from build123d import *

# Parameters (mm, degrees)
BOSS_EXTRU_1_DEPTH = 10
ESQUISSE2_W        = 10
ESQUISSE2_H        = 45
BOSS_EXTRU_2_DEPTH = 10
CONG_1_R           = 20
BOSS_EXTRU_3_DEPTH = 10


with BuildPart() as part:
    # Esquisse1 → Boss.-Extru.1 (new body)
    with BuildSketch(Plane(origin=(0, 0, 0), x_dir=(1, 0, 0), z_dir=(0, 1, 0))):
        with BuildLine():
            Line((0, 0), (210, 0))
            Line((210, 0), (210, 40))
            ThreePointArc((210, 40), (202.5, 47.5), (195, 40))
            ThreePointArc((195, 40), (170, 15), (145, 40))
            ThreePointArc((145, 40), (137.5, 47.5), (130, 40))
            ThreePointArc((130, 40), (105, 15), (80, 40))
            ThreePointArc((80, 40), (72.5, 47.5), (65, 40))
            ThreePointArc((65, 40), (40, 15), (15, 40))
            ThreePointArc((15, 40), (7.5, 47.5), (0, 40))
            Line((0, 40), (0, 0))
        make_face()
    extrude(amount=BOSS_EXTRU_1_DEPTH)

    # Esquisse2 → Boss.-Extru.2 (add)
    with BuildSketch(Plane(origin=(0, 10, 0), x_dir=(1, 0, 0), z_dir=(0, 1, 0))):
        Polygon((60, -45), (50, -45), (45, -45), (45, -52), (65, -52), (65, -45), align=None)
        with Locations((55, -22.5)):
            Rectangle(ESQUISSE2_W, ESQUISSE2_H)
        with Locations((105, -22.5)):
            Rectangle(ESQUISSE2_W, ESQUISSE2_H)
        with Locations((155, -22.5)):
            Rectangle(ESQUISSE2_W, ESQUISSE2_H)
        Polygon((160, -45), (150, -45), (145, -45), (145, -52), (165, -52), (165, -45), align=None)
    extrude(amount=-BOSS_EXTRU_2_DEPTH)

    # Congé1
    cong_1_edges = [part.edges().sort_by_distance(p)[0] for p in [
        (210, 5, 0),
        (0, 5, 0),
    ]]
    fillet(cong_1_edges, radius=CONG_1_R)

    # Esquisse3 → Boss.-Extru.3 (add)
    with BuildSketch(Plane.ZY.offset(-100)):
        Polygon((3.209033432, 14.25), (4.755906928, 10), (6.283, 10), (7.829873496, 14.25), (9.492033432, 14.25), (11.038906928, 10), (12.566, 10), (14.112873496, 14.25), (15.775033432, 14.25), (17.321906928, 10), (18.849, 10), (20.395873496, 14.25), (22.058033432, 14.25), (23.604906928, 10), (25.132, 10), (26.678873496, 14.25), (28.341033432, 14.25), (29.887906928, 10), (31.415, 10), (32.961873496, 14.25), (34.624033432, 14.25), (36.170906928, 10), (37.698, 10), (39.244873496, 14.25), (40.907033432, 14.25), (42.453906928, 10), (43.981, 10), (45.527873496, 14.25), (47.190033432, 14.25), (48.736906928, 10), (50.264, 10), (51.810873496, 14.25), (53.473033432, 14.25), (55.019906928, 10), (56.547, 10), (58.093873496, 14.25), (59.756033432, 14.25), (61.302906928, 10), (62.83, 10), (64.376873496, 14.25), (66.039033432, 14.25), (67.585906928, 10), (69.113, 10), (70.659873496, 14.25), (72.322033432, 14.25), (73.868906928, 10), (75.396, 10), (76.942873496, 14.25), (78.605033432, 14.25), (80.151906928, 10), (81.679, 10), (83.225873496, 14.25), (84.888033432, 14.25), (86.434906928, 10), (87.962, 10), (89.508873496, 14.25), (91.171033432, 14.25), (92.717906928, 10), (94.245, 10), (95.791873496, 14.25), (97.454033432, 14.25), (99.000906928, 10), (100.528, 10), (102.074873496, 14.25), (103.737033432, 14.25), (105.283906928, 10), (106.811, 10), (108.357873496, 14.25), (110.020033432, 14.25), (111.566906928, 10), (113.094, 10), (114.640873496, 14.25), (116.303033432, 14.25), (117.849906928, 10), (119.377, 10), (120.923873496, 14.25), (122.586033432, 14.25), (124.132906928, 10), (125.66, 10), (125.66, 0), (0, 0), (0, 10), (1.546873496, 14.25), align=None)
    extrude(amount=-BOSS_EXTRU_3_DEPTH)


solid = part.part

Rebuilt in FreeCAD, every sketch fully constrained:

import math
import FreeCAD as App
import Part
import Sketcher
Q = App.Units.Quantity


def edges_at(feature, points):
    """Names of the edges that pass closest to the given points."""
    edges = feature.Shape.Edges
    near = lambda p: min(range(len(edges)), key=lambda i: edges[i].distToShape(Part.Vertex(*p))[0])
    return sorted({f"Edge{near(p) + 1}" for p in points})

doc = App.newDocument("Part")
body = doc.addObject("PartDesign::Body", "Body")

sketch1 = body.newObject("Sketcher::SketchObject", "Sketch")
sketch1.AttachmentSupport = (doc.getObject("XZ_Plane"), [""])
sketch1.MapMode = "FlatFace"
sketch1.addGeometry(Part.LineSegment(App.Vector(0, 0, 0), App.Vector(210, 0, 0)), False)
sketch1.addGeometry(Part.LineSegment(App.Vector(210, 0, 0), App.Vector(210, -40, 0)), False)
sketch1.addGeometry(Part.ArcOfCircle(Part.Circle(App.Vector(202, -40, 0), App.Vector(0, 0, 1), 8), math.radians(180), math.radians(360)), False)
sketch1.addGeometry(Part.ArcOfCircle(Part.Circle(App.Vector(170, -40, 0), App.Vector(0, 0, 1), 25), math.radians(0), math.radians(180)), False)
sketch1.addGeometry(Part.ArcOfCircle(Part.Circle(App.Vector(138, -40, 0), App.Vector(0, 0, 1), 8), math.radians(180), math.radians(360)), False)
sketch1.addGeometry(Part.ArcOfCircle(Part.Circle(App.Vector(105, -40, 0), App.Vector(0, 0, 1), 25), math.radians(0), math.radians(180)), False)
sketch1.addGeometry(Part.ArcOfCircle(Part.Circle(App.Vector(72, -40, 0), App.Vector(0, 0, 1), 8), math.radians(180), math.radians(360)), False)
sketch1.addGeometry(Part.ArcOfCircle(Part.Circle(App.Vector(40, -40, 0), App.Vector(0, 0, 1), 25), math.radians(0), math.radians(180)), False)
sketch1.addGeometry(Part.ArcOfCircle(Part.Circle(App.Vector(8, -40, 0), App.Vector(0, 0, 1), 8), math.radians(180), math.radians(360)), False)
sketch1.addGeometry(Part.LineSegment(App.Vector(0, -40, 0), App.Vector(0, 0, 0)), False)
sketch1.addConstraint(Sketcher.Constraint("Coincident", 0, 2, 1, 1))
sketch1.addConstraint(Sketcher.Constraint("Tangent", 1, 2, 2, 2))
sketch1.addConstraint(Sketcher.Constraint("Tangent", 2, 1, 3, 1))
sketch1.addConstraint(Sketcher.Constraint("Tangent", 3, 2, 4, 2))
sketch1.addConstraint(Sketcher.Constraint("Tangent", 4, 1, 5, 1))
sketch1.addConstraint(Sketcher.Constraint("Tangent", 5, 2, 6, 2))
sketch1.addConstraint(Sketcher.Constraint("Tangent", 6, 1, 7, 1))
sketch1.addConstraint(Sketcher.Constraint("Tangent", 7, 2, 8, 2))
sketch1.addConstraint(Sketcher.Constraint("Tangent", 8, 1, 9, 1))
sketch1.addConstraint(Sketcher.Constraint("Coincident", 9, 2, 0, 1))
sketch1.addConstraint(Sketcher.Constraint("Horizontal", 0))
sketch1.addConstraint(Sketcher.Constraint("Vertical", 1))
sketch1.addConstraint(Sketcher.Constraint("Vertical", 9))
sketch1.addConstraint(Sketcher.Constraint("Coincident", 9, 2, -1, 1))
sketch1.addConstraint(Sketcher.Constraint("Equal", 2, 4))
sketch1.addConstraint(Sketcher.Constraint("Equal", 3, 5))
sketch1.addConstraint(Sketcher.Constraint("Equal", 4, 6))
sketch1.addConstraint(Sketcher.Constraint("Equal", 5, 7))
sketch1.addConstraint(Sketcher.Constraint("Equal", 6, 8))
sketch1.addConstraint(Sketcher.Constraint("Horizontal", 2, 3, 3, 3))
sketch1.addConstraint(Sketcher.Constraint("Horizontal", 3, 3, 4, 3))
sketch1.addConstraint(Sketcher.Constraint("Horizontal", 4, 3, 5, 3))
sketch1.addConstraint(Sketcher.Constraint("Horizontal", 5, 3, 6, 3))
sketch1.addConstraint(Sketcher.Constraint("Horizontal", 6, 3, 7, 3))
sketch1.addConstraint(Sketcher.Constraint("Horizontal", 7, 3, 8, 3))
sketch1.addConstraint(Sketcher.Constraint("Radius", 3, 25.0))
sketch1.addConstraint(Sketcher.Constraint("Radius", 2, 7.5))
sketch1.addConstraint(Sketcher.Constraint("DistanceY", 1, 2, 1, 1, 40.0))
pad1 = body.newObject("PartDesign::Pad", "Pad")
pad1.Profile = sketch1
pad1.Length = 10
pad1.Reversed = True

sketch2 = body.newObject("Sketcher::SketchObject", "Sketch001")
sketch2.AttachmentSupport = (doc.getObject("XZ_Plane"), [""])
sketch2.MapMode = "FlatFace"
sketch2.AttachmentOffset = App.Placement(App.Vector(0, 0, -10), App.Rotation())
sketch2.addGeometry(Part.LineSegment(App.Vector(45, 45, 0), App.Vector(45, 52, 0)), False)
sketch2.addGeometry(Part.LineSegment(App.Vector(45, 52, 0), App.Vector(65, 52, 0)), False)
sketch2.addGeometry(Part.LineSegment(App.Vector(65, 52, 0), App.Vector(65, 45, 0)), False)
sketch2.addGeometry(Part.LineSegment(App.Vector(65, 45, 0), App.Vector(60, 45, 0)), False)
sketch2.addGeometry(Part.LineSegment(App.Vector(60, 45, 0), App.Vector(60, 0, 0)), False)
sketch2.addGeometry(Part.LineSegment(App.Vector(60, 0, 0), App.Vector(50, 0, 0)), False)
sketch2.addGeometry(Part.LineSegment(App.Vector(50, 0, 0), App.Vector(50, 45, 0)), False)
sketch2.addGeometry(Part.LineSegment(App.Vector(50, 45, 0), App.Vector(45, 45, 0)), False)
sketch2.addGeometry(Part.LineSegment(App.Vector(100, 0, 0), App.Vector(100, 45, 0)), False)
sketch2.addGeometry(Part.LineSegment(App.Vector(100, 45, 0), App.Vector(110, 45, 0)), False)
sketch2.addGeometry(Part.LineSegment(App.Vector(110, 45, 0), App.Vector(110, 0, 0)), False)
sketch2.addGeometry(Part.LineSegment(App.Vector(110, 0, 0), App.Vector(100, 0, 0)), False)
sketch2.addGeometry(Part.LineSegment(App.Vector(150, 0, 0), App.Vector(150, 45, 0)), False)
sketch2.addGeometry(Part.LineSegment(App.Vector(150, 45, 0), App.Vector(145, 45, 0)), False)
sketch2.addGeometry(Part.LineSegment(App.Vector(145, 45, 0), App.Vector(145, 52, 0)), False)
sketch2.addGeometry(Part.LineSegment(App.Vector(145, 52, 0), App.Vector(165, 52, 0)), False)
sketch2.addGeometry(Part.LineSegment(App.Vector(165, 52, 0), App.Vector(165, 45, 0)), False)
sketch2.addGeometry(Part.LineSegment(App.Vector(165, 45, 0), App.Vector(160, 45, 0)), False)
sketch2.addGeometry(Part.LineSegment(App.Vector(160, 45, 0), App.Vector(160, 0, 0)), False)
sketch2.addGeometry(Part.LineSegment(App.Vector(160, 0, 0), App.Vector(150, 0, 0)), False)
sketch2.addConstraint(Sketcher.Constraint("Coincident", 0, 2, 1, 1))
sketch2.addConstraint(Sketcher.Constraint("Coincident", 1, 2, 2, 1))
sketch2.addConstraint(Sketcher.Constraint("Coincident", 2, 2, 3, 1))
sketch2.addConstraint(Sketcher.Constraint("Coincident", 3, 2, 4, 1))
sketch2.addConstraint(Sketcher.Constraint("Coincident", 4, 2, 5, 1))
sketch2.addConstraint(Sketcher.Constraint("Coincident", 5, 2, 6, 1))
sketch2.addConstraint(Sketcher.Constraint("Coincident", 6, 2, 7, 1))
sketch2.addConstraint(Sketcher.Constraint("Coincident", 7, 2, 0, 1))
sketch2.addConstraint(Sketcher.Constraint("Coincident", 8, 2, 9, 1))
sketch2.addConstraint(Sketcher.Constraint("Coincident", 9, 2, 10, 1))
sketch2.addConstraint(Sketcher.Constraint("Coincident", 10, 2, 11, 1))
sketch2.addConstraint(Sketcher.Constraint("Coincident", 11, 2, 8, 1))
sketch2.addConstraint(Sketcher.Constraint("Coincident", 12, 2, 13, 1))
sketch2.addConstraint(Sketcher.Constraint("Coincident", 13, 2, 14, 1))
sketch2.addConstraint(Sketcher.Constraint("Coincident", 14, 2, 15, 1))
sketch2.addConstraint(Sketcher.Constraint("Coincident", 15, 2, 16, 1))
sketch2.addConstraint(Sketcher.Constraint("Coincident", 16, 2, 17, 1))
sketch2.addConstraint(Sketcher.Constraint("Coincident", 17, 2, 18, 1))
sketch2.addConstraint(Sketcher.Constraint("Coincident", 18, 2, 19, 1))
sketch2.addConstraint(Sketcher.Constraint("Coincident", 19, 2, 12, 1))
sketch2.addConstraint(Sketcher.Constraint("Vertical", 0))
sketch2.addConstraint(Sketcher.Constraint("Horizontal", 1))
sketch2.addConstraint(Sketcher.Constraint("Vertical", 2))
sketch2.addConstraint(Sketcher.Constraint("Horizontal", 3))
sketch2.addConstraint(Sketcher.Constraint("Vertical", 4))
sketch2.addConstraint(Sketcher.Constraint("Horizontal", 5))
sketch2.addConstraint(Sketcher.Constraint("Vertical", 6))
sketch2.addConstraint(Sketcher.Constraint("Horizontal", 7))
sketch2.addConstraint(Sketcher.Constraint("Vertical", 8))
sketch2.addConstraint(Sketcher.Constraint("Horizontal", 9))
sketch2.addConstraint(Sketcher.Constraint("Vertical", 10))
sketch2.addConstraint(Sketcher.Constraint("Horizontal", 11))
sketch2.addConstraint(Sketcher.Constraint("Vertical", 12))
sketch2.addConstraint(Sketcher.Constraint("Horizontal", 13))
sketch2.addConstraint(Sketcher.Constraint("Vertical", 14))
sketch2.addConstraint(Sketcher.Constraint("Horizontal", 15))
sketch2.addConstraint(Sketcher.Constraint("Vertical", 16))
sketch2.addConstraint(Sketcher.Constraint("Horizontal", 17))
sketch2.addConstraint(Sketcher.Constraint("Vertical", 18))
sketch2.addConstraint(Sketcher.Constraint("Horizontal", 19))
sketch2.addConstraint(Sketcher.Constraint("PointOnObject", 4, 2, -1))
sketch2.addConstraint(Sketcher.Constraint("PointOnObject", 10, 2, -1))
sketch2.addConstraint(Sketcher.Constraint("PointOnObject", 18, 2, -1))
sketch2.addConstraint(Sketcher.Constraint("Horizontal", 3, 2, 6, 2))
sketch2.addConstraint(Sketcher.Constraint("Horizontal", 7, 2, 8, 2))
sketch2.addConstraint(Sketcher.Constraint("Horizontal", 9, 2, 12, 2))
sketch2.addConstraint(Sketcher.Constraint("Horizontal", 1, 2, 14, 2))
sketch2.addConstraint(Sketcher.Constraint("Horizontal", 13, 2, 16, 2))
sketch2.addConstraint(Sketcher.Constraint("Equal", 3, 7))
sketch2.addConstraint(Sketcher.Constraint("Equal", 5, 9))
sketch2.addConstraint(Sketcher.Constraint("Equal", 7, 13))
sketch2.addConstraint(Sketcher.Constraint("Equal", 1, 15))
sketch2.addConstraint(Sketcher.Constraint("Equal", 13, 17))
sketch2.addConstraint(Sketcher.Constraint("DistanceX", 1, 1, 1, 2, 20.0))
sketch2.addConstraint(Sketcher.Constraint("DistanceX", 3, 2, 3, 1, 5.0))
sketch2.addConstraint(Sketcher.Constraint("DistanceY", 0, 1, 0, 2, 7.0))
sketch2.addConstraint(Sketcher.Constraint("DistanceY", 4, 2, 4, 1, 45.0))
sketch2.addConstraint(Sketcher.Constraint("DistanceX", -1, 1, 0, 2, 45.0))
sketch2.addConstraint(Sketcher.Constraint("DistanceX", -1, 1, 8, 2, 100.0))
sketch2.addConstraint(Sketcher.Constraint("DistanceX", -1, 1, 12, 2, 150.0))
pad2 = body.newObject("PartDesign::Pad", "Pad001")
pad2.Profile = sketch2
pad2.Length = 10
doc.recompute()

fillet = body.newObject("PartDesign::Fillet", "Fillet")
fillet.Base = (pad2, edges_at(pad2, [(210, 5, 0), (0, 5, 0)]))
fillet.Radius = 20

sketch3 = body.newObject("Sketcher::SketchObject", "Sketch002")
sketch3.AttachmentSupport = (doc.getObject("YZ_Plane"), [""])
sketch3.MapMode = "FlatFace"
sketch3.AttachmentOffset = App.Placement(App.Vector(0, 0, 100), App.Rotation())
sketch3.addGeometry(Part.LineSegment(App.Vector(10, 4.8, 0), App.Vector(14.2, 3.2, 0)), False)
sketch3.addGeometry(Part.LineSegment(App.Vector(14.2, 3.2, 0), App.Vector(14.2, 1.5, 0)), False)
sketch3.addGeometry(Part.LineSegment(App.Vector(14.2, 1.5, 0), App.Vector(10, 0, 0)), False)
sketch3.addGeometry(Part.LineSegment(App.Vector(10, 0, 0), App.Vector(0, 0, 0)), False)
sketch3.addGeometry(Part.LineSegment(App.Vector(0, 0, 0), App.Vector(0, 125.7, 0)), False)
sketch3.addGeometry(Part.LineSegment(App.Vector(0, 125.7, 0), App.Vector(10, 125.7, 0)), False)
sketch3.addGeometry(Part.LineSegment(App.Vector(10, 125.7, 0), App.Vector(10, 124.1, 0)), False)
sketch3.addGeometry(Part.LineSegment(App.Vector(10, 124.1, 0), App.Vector(14.2, 122.6, 0)), False)
sketch3.addGeometry(Part.LineSegment(App.Vector(14.2, 122.6, 0), App.Vector(14.2, 120.9, 0)), False)
sketch3.addGeometry(Part.LineSegment(App.Vector(14.2, 120.9, 0), App.Vector(10, 119.4, 0)), False)
sketch3.addGeometry(Part.LineSegment(App.Vector(10, 119.4, 0), App.Vector(10, 117.8, 0)), False)
sketch3.addGeometry(Part.LineSegment(App.Vector(10, 117.8, 0), App.Vector(14.2, 116.3, 0)), False)
sketch3.addGeometry(Part.LineSegment(App.Vector(14.2, 116.3, 0), App.Vector(14.2, 114.6, 0)), False)
sketch3.addGeometry(Part.LineSegment(App.Vector(14.2, 114.6, 0), App.Vector(10, 113.1, 0)), False)
sketch3.addGeometry(Part.LineSegment(App.Vector(10, 113.1, 0), App.Vector(10, 111.6, 0)), False)
sketch3.addGeometry(Part.LineSegment(App.Vector(10, 111.6, 0), App.Vector(14.2, 110, 0)), False)
sketch3.addGeometry(Part.LineSegment(App.Vector(14.2, 110, 0), App.Vector(14.2, 108.4, 0)), False)
sketch3.addGeometry(Part.LineSegment(App.Vector(14.2, 108.4, 0), App.Vector(10, 106.8, 0)), False)
sketch3.addGeometry(Part.LineSegment(App.Vector(10, 106.8, 0), App.Vector(10, 105.3, 0)), False)
sketch3.addGeometry(Part.LineSegment(App.Vector(10, 105.3, 0), App.Vector(14.2, 103.7, 0)), False)
sketch3.addGeometry(Part.LineSegment(App.Vector(14.2, 103.7, 0), App.Vector(14.2, 102.1, 0)), False)
sketch3.addGeometry(Part.LineSegment(App.Vector(14.2, 102.1, 0), App.Vector(10, 100.5, 0)), False)
sketch3.addGeometry(Part.LineSegment(App.Vector(10, 100.5, 0), App.Vector(10, 99, 0)), False)
sketch3.addGeometry(Part.LineSegment(App.Vector(10, 99, 0), App.Vector(14.2, 97.5, 0)), False)
sketch3.addGeometry(Part.LineSegment(App.Vector(14.2, 97.5, 0), App.Vector(14.2, 95.8, 0)), False)
sketch3.addGeometry(Part.LineSegment(App.Vector(14.2, 95.8, 0), App.Vector(10, 94.2, 0)), False)
sketch3.addGeometry(Part.LineSegment(App.Vector(10, 94.2, 0), App.Vector(10, 92.7, 0)), False)
sketch3.addGeometry(Part.LineSegment(App.Vector(10, 92.7, 0), App.Vector(14.2, 91.2, 0)), False)
sketch3.addGeometry(Part.LineSegment(App.Vector(14.2, 91.2, 0), App.Vector(14.2, 89.5, 0)), False)
sketch3.addGeometry(Part.LineSegment(App.Vector(14.2, 89.5, 0), App.Vector(10, 88, 0)), False)
sketch3.addGeometry(Part.LineSegment(App.Vector(10, 88, 0), App.Vector(10, 86.4, 0)), False)
sketch3.addGeometry(Part.LineSegment(App.Vector(10, 86.4, 0), App.Vector(14.2, 84.9, 0)), False)
sketch3.addGeometry(Part.LineSegment(App.Vector(14.2, 84.9, 0), App.Vector(14.2, 83.2, 0)), False)
sketch3.addGeometry(Part.LineSegment(App.Vector(14.2, 83.2, 0), App.Vector(10, 81.7, 0)), False)
sketch3.addGeometry(Part.LineSegment(App.Vector(10, 81.7, 0), App.Vector(10, 80.2, 0)), False)
sketch3.addGeometry(Part.LineSegment(App.Vector(10, 80.2, 0), App.Vector(14.2, 78.6, 0)), False)
sketch3.addGeometry(Part.LineSegment(App.Vector(14.2, 78.6, 0), App.Vector(14.2, 76.9, 0)), False)
sketch3.addGeometry(Part.LineSegment(App.Vector(14.2, 76.9, 0), App.Vector(10, 75.4, 0)), False)
sketch3.addGeometry(Part.LineSegment(App.Vector(10, 75.4, 0), App.Vector(10, 73.9, 0)), False)
sketch3.addGeometry(Part.LineSegment(App.Vector(10, 73.9, 0), App.Vector(14.2, 72.3, 0)), False)
sketch3.addGeometry(Part.LineSegment(App.Vector(14.2, 72.3, 0), App.Vector(14.2, 70.7, 0)), False)
sketch3.addGeometry(Part.LineSegment(App.Vector(14.2, 70.7, 0), App.Vector(10, 69.1, 0)), False)
sketch3.addGeometry(Part.LineSegment(App.Vector(10, 69.1, 0), App.Vector(10, 67.6, 0)), False)
sketch3.addGeometry(Part.LineSegment(App.Vector(10, 67.6, 0), App.Vector(14.2, 66, 0)), False)
sketch3.addGeometry(Part.LineSegment(App.Vector(14.2, 66, 0), App.Vector(14.2, 64.4, 0)), False)
sketch3.addGeometry(Part.LineSegment(App.Vector(14.2, 64.4, 0), App.Vector(10, 62.8, 0)), False)
sketch3.addGeometry(Part.LineSegment(App.Vector(10, 62.8, 0), App.Vector(10, 61.3, 0)), False)
sketch3.addGeometry(Part.LineSegment(App.Vector(10, 61.3, 0), App.Vector(14.2, 59.8, 0)), False)
sketch3.addGeometry(Part.LineSegment(App.Vector(14.2, 59.8, 0), App.Vector(14.2, 58.1, 0)), False)
sketch3.addGeometry(Part.LineSegment(App.Vector(14.2, 58.1, 0), App.Vector(10, 56.5, 0)), False)
sketch3.addGeometry(Part.LineSegment(App.Vector(10, 56.5, 0), App.Vector(10, 55, 0)), False)
sketch3.addGeometry(Part.LineSegment(App.Vector(10, 55, 0), App.Vector(14.2, 53.5, 0)), False)
sketch3.addGeometry(Part.LineSegment(App.Vector(14.2, 53.5, 0), App.Vector(14.2, 51.8, 0)), False)
sketch3.addGeometry(Part.LineSegment(App.Vector(14.2, 51.8, 0), App.Vector(10, 50.3, 0)), False)
sketch3.addGeometry(Part.LineSegment(App.Vector(10, 50.3, 0), App.Vector(10, 48.7, 0)), False)
sketch3.addGeometry(Part.LineSegment(App.Vector(10, 48.7, 0), App.Vector(14.2, 47.2, 0)), False)
sketch3.addGeometry(Part.LineSegment(App.Vector(14.2, 47.2, 0), App.Vector(14.2, 45.5, 0)), False)
sketch3.addGeometry(Part.LineSegment(App.Vector(14.2, 45.5, 0), App.Vector(10, 44, 0)), False)
sketch3.addGeometry(Part.LineSegment(App.Vector(10, 44, 0), App.Vector(10, 42.5, 0)), False)
sketch3.addGeometry(Part.LineSegment(App.Vector(10, 42.5, 0), App.Vector(14.2, 40.9, 0)), False)
sketch3.addGeometry(Part.LineSegment(App.Vector(14.2, 40.9, 0), App.Vector(14.2, 39.2, 0)), False)
sketch3.addGeometry(Part.LineSegment(App.Vector(14.2, 39.2, 0), App.Vector(10, 37.7, 0)), False)
sketch3.addGeometry(Part.LineSegment(App.Vector(10, 37.7, 0), App.Vector(10, 36.2, 0)), False)
sketch3.addGeometry(Part.LineSegment(App.Vector(10, 36.2, 0), App.Vector(14.2, 34.6, 0)), False)
sketch3.addGeometry(Part.LineSegment(App.Vector(14.2, 34.6, 0), App.Vector(14.2, 33, 0)), False)
sketch3.addGeometry(Part.LineSegment(App.Vector(14.2, 33, 0), App.Vector(10, 31.4, 0)), False)
sketch3.addGeometry(Part.LineSegment(App.Vector(10, 31.4, 0), App.Vector(10, 29.9, 0)), False)
sketch3.addGeometry(Part.LineSegment(App.Vector(10, 29.9, 0), App.Vector(14.2, 28.3, 0)), False)
sketch3.addGeometry(Part.LineSegment(App.Vector(14.2, 28.3, 0), App.Vector(14.2, 26.7, 0)), False)
sketch3.addGeometry(Part.LineSegment(App.Vector(14.2, 26.7, 0), App.Vector(10, 25.1, 0)), False)
sketch3.addGeometry(Part.LineSegment(App.Vector(10, 25.1, 0), App.Vector(10, 23.6, 0)), False)
sketch3.addGeometry(Part.LineSegment(App.Vector(10, 23.6, 0), App.Vector(14.2, 22.1, 0)), False)
sketch3.addGeometry(Part.LineSegment(App.Vector(14.2, 22.1, 0), App.Vector(14.2, 20.4, 0)), False)
sketch3.addGeometry(Part.LineSegment(App.Vector(14.2, 20.4, 0), App.Vector(10, 18.8, 0)), False)
sketch3.addGeometry(Part.LineSegment(App.Vector(10, 18.8, 0), App.Vector(10, 17.3, 0)), False)
sketch3.addGeometry(Part.LineSegment(App.Vector(10, 17.3, 0), App.Vector(14.2, 15.8, 0)), False)
sketch3.addGeometry(Part.LineSegment(App.Vector(14.2, 15.8, 0), App.Vector(14.2, 14.1, 0)), False)
sketch3.addGeometry(Part.LineSegment(App.Vector(14.2, 14.1, 0), App.Vector(10, 12.6, 0)), False)
sketch3.addGeometry(Part.LineSegment(App.Vector(10, 12.6, 0), App.Vector(10, 11, 0)), False)
sketch3.addGeometry(Part.LineSegment(App.Vector(10, 11, 0), App.Vector(14.2, 9.5, 0)), False)
sketch3.addGeometry(Part.LineSegment(App.Vector(14.2, 9.5, 0), App.Vector(14.2, 7.8, 0)), False)
sketch3.addGeometry(Part.LineSegment(App.Vector(14.2, 7.8, 0), App.Vector(10, 6.3, 0)), False)
sketch3.addGeometry(Part.LineSegment(App.Vector(10, 6.3, 0), App.Vector(10, 4.8, 0)), False)
sketch3.addConstraint(Sketcher.Constraint("Coincident", 0, 2, 1, 1))
sketch3.addConstraint(Sketcher.Constraint("Coincident", 1, 2, 2, 1))
sketch3.addConstraint(Sketcher.Constraint("Coincident", 2, 2, 3, 1))
sketch3.addConstraint(Sketcher.Constraint("Coincident", 3, 2, 4, 1))
sketch3.addConstraint(Sketcher.Constraint("Coincident", 4, 2, 5, 1))
sketch3.addConstraint(Sketcher.Constraint("Coincident", 5, 2, 6, 1))
sketch3.addConstraint(Sketcher.Constraint("Coincident", 6, 2, 7, 1))
sketch3.addConstraint(Sketcher.Constraint("Coincident", 7, 2, 8, 1))
sketch3.addConstraint(Sketcher.Constraint("Coincident", 8, 2, 9, 1))
sketch3.addConstraint(Sketcher.Constraint("Coincident", 9, 2, 10, 1))
sketch3.addConstraint(Sketcher.Constraint("Coincident", 10, 2, 11, 1))
sketch3.addConstraint(Sketcher.Constraint("Coincident", 11, 2, 12, 1))
sketch3.addConstraint(Sketcher.Constraint("Coincident", 12, 2, 13, 1))
sketch3.addConstraint(Sketcher.Constraint("Coincident", 13, 2, 14, 1))
sketch3.addConstraint(Sketcher.Constraint("Coincident", 14, 2, 15, 1))
sketch3.addConstraint(Sketcher.Constraint("Coincident", 15, 2, 16, 1))
sketch3.addConstraint(Sketcher.Constraint("Coincident", 16, 2, 17, 1))
sketch3.addConstraint(Sketcher.Constraint("Coincident", 17, 2, 18, 1))
sketch3.addConstraint(Sketcher.Constraint("Coincident", 18, 2, 19, 1))
sketch3.addConstraint(Sketcher.Constraint("Coincident", 19, 2, 20, 1))
sketch3.addConstraint(Sketcher.Constraint("Coincident", 20, 2, 21, 1))
sketch3.addConstraint(Sketcher.Constraint("Coincident", 21, 2, 22, 1))
sketch3.addConstraint(Sketcher.Constraint("Coincident", 22, 2, 23, 1))
sketch3.addConstraint(Sketcher.Constraint("Coincident", 23, 2, 24, 1))
sketch3.addConstraint(Sketcher.Constraint("Coincident", 24, 2, 25, 1))
sketch3.addConstraint(Sketcher.Constraint("Coincident", 25, 2, 26, 1))
sketch3.addConstraint(Sketcher.Constraint("Coincident", 26, 2, 27, 1))
sketch3.addConstraint(Sketcher.Constraint("Coincident", 27, 2, 28, 1))
sketch3.addConstraint(Sketcher.Constraint("Coincident", 28, 2, 29, 1))
sketch3.addConstraint(Sketcher.Constraint("Coincident", 29, 2, 30, 1))
sketch3.addConstraint(Sketcher.Constraint("Coincident", 30, 2, 31, 1))
sketch3.addConstraint(Sketcher.Constraint("Coincident", 31, 2, 32, 1))
sketch3.addConstraint(Sketcher.Constraint("Coincident", 32, 2, 33, 1))
sketch3.addConstraint(Sketcher.Constraint("Coincident", 33, 2, 34, 1))
sketch3.addConstraint(Sketcher.Constraint("Coincident", 34, 2, 35, 1))
sketch3.addConstraint(Sketcher.Constraint("Coincident", 35, 2, 36, 1))
sketch3.addConstraint(Sketcher.Constraint("Coincident", 36, 2, 37, 1))
sketch3.addConstraint(Sketcher.Constraint("Coincident", 37, 2, 38, 1))
sketch3.addConstraint(Sketcher.Constraint("Coincident", 38, 2, 39, 1))
sketch3.addConstraint(Sketcher.Constraint("Coincident", 39, 2, 40, 1))
sketch3.addConstraint(Sketcher.Constraint("Coincident", 40, 2, 41, 1))
sketch3.addConstraint(Sketcher.Constraint("Coincident", 41, 2, 42, 1))
sketch3.addConstraint(Sketcher.Constraint("Coincident", 42, 2, 43, 1))
sketch3.addConstraint(Sketcher.Constraint("Coincident", 43, 2, 44, 1))
sketch3.addConstraint(Sketcher.Constraint("Coincident", 44, 2, 45, 1))
sketch3.addConstraint(Sketcher.Constraint("Coincident", 45, 2, 46, 1))
sketch3.addConstraint(Sketcher.Constraint("Coincident", 46, 2, 47, 1))
sketch3.addConstraint(Sketcher.Constraint("Coincident", 47, 2, 48, 1))
sketch3.addConstraint(Sketcher.Constraint("Coincident", 48, 2, 49, 1))
sketch3.addConstraint(Sketcher.Constraint("Coincident", 49, 2, 50, 1))
sketch3.addConstraint(Sketcher.Constraint("Coincident", 50, 2, 51, 1))
sketch3.addConstraint(Sketcher.Constraint("Coincident", 51, 2, 52, 1))
sketch3.addConstraint(Sketcher.Constraint("Coincident", 52, 2, 53, 1))
sketch3.addConstraint(Sketcher.Constraint("Coincident", 53, 2, 54, 1))
sketch3.addConstraint(Sketcher.Constraint("Coincident", 54, 2, 55, 1))
sketch3.addConstraint(Sketcher.Constraint("Coincident", 55, 2, 56, 1))
sketch3.addConstraint(Sketcher.Constraint("Coincident", 56, 2, 57, 1))
sketch3.addConstraint(Sketcher.Constraint("Coincident", 57, 2, 58, 1))
sketch3.addConstraint(Sketcher.Constraint("Coincident", 58, 2, 59, 1))
sketch3.addConstraint(Sketcher.Constraint("Coincident", 59, 2, 60, 1))
sketch3.addConstraint(Sketcher.Constraint("Coincident", 60, 2, 61, 1))
sketch3.addConstraint(Sketcher.Constraint("Coincident", 61, 2, 62, 1))
sketch3.addConstraint(Sketcher.Constraint("Coincident", 62, 2, 63, 1))
sketch3.addConstraint(Sketcher.Constraint("Coincident", 63, 2, 64, 1))
sketch3.addConstraint(Sketcher.Constraint("Coincident", 64, 2, 65, 1))
sketch3.addConstraint(Sketcher.Constraint("Coincident", 65, 2, 66, 1))
sketch3.addConstraint(Sketcher.Constraint("Coincident", 66, 2, 67, 1))
sketch3.addConstraint(Sketcher.Constraint("Coincident", 67, 2, 68, 1))
sketch3.addConstraint(Sketcher.Constraint("Coincident", 68, 2, 69, 1))
sketch3.addConstraint(Sketcher.Constraint("Coincident", 69, 2, 70, 1))
sketch3.addConstraint(Sketcher.Constraint("Coincident", 70, 2, 71, 1))
sketch3.addConstraint(Sketcher.Constraint("Coincident", 71, 2, 72, 1))
sketch3.addConstraint(Sketcher.Constraint("Coincident", 72, 2, 73, 1))
sketch3.addConstraint(Sketcher.Constraint("Coincident", 73, 2, 74, 1))
sketch3.addConstraint(Sketcher.Constraint("Coincident", 74, 2, 75, 1))
sketch3.addConstraint(Sketcher.Constraint("Coincident", 75, 2, 76, 1))
sketch3.addConstraint(Sketcher.Constraint("Coincident", 76, 2, 77, 1))
sketch3.addConstraint(Sketcher.Constraint("Coincident", 77, 2, 78, 1))
sketch3.addConstraint(Sketcher.Constraint("Coincident", 78, 2, 79, 1))
sketch3.addConstraint(Sketcher.Constraint("Coincident", 79, 2, 80, 1))
sketch3.addConstraint(Sketcher.Constraint("Coincident", 80, 2, 81, 1))
sketch3.addConstraint(Sketcher.Constraint("Coincident", 81, 2, 82, 1))
sketch3.addConstraint(Sketcher.Constraint("Coincident", 82, 2, 0, 1))
sketch3.addConstraint(Sketcher.Constraint("Vertical", 1))
sketch3.addConstraint(Sketcher.Constraint("Horizontal", 3))
sketch3.addConstraint(Sketcher.Constraint("Vertical", 4))
sketch3.addConstraint(Sketcher.Constraint("Horizontal", 5))
sketch3.addConstraint(Sketcher.Constraint("Vertical", 6))
sketch3.addConstraint(Sketcher.Constraint("Vertical", 8))
sketch3.addConstraint(Sketcher.Constraint("Vertical", 10))
sketch3.addConstraint(Sketcher.Constraint("Vertical", 12))
sketch3.addConstraint(Sketcher.Constraint("Vertical", 14))
sketch3.addConstraint(Sketcher.Constraint("Vertical", 16))
sketch3.addConstraint(Sketcher.Constraint("Vertical", 18))
sketch3.addConstraint(Sketcher.Constraint("Vertical", 20))
sketch3.addConstraint(Sketcher.Constraint("Vertical", 22))
sketch3.addConstraint(Sketcher.Constraint("Vertical", 24))
sketch3.addConstraint(Sketcher.Constraint("Vertical", 26))
sketch3.addConstraint(Sketcher.Constraint("Vertical", 28))
sketch3.addConstraint(Sketcher.Constraint("Vertical", 30))
sketch3.addConstraint(Sketcher.Constraint("Vertical", 32))
sketch3.addConstraint(Sketcher.Constraint("Vertical", 34))
sketch3.addConstraint(Sketcher.Constraint("Vertical", 36))
sketch3.addConstraint(Sketcher.Constraint("Vertical", 38))
sketch3.addConstraint(Sketcher.Constraint("Vertical", 40))
sketch3.addConstraint(Sketcher.Constraint("Vertical", 42))
sketch3.addConstraint(Sketcher.Constraint("Vertical", 44))
sketch3.addConstraint(Sketcher.Constraint("Vertical", 46))
sketch3.addConstraint(Sketcher.Constraint("Vertical", 48))
sketch3.addConstraint(Sketcher.Constraint("Vertical", 50))
sketch3.addConstraint(Sketcher.Constraint("Vertical", 52))
sketch3.addConstraint(Sketcher.Constraint("Vertical", 54))
sketch3.addConstraint(Sketcher.Constraint("Vertical", 56))
sketch3.addConstraint(Sketcher.Constraint("Vertical", 58))
sketch3.addConstraint(Sketcher.Constraint("Vertical", 60))
sketch3.addConstraint(Sketcher.Constraint("Vertical", 62))
sketch3.addConstraint(Sketcher.Constraint("Vertical", 64))
sketch3.addConstraint(Sketcher.Constraint("Vertical", 66))
sketch3.addConstraint(Sketcher.Constraint("Vertical", 68))
sketch3.addConstraint(Sketcher.Constraint("Vertical", 70))
sketch3.addConstraint(Sketcher.Constraint("Vertical", 72))
sketch3.addConstraint(Sketcher.Constraint("Vertical", 74))
sketch3.addConstraint(Sketcher.Constraint("Vertical", 76))
sketch3.addConstraint(Sketcher.Constraint("Vertical", 78))
sketch3.addConstraint(Sketcher.Constraint("Vertical", 80))
sketch3.addConstraint(Sketcher.Constraint("Vertical", 82))
sketch3.addConstraint(Sketcher.Constraint("Coincident", 3, 2, -1, 1))
sketch3.addConstraint(Sketcher.Constraint("Parallel", 0, 7))
sketch3.addConstraint(Sketcher.Constraint("Parallel", 2, 9))
sketch3.addConstraint(Sketcher.Constraint("Parallel", 7, 11))
sketch3.addConstraint(Sketcher.Constraint("Parallel", 9, 13))
sketch3.addConstraint(Sketcher.Constraint("Parallel", 11, 15))
sketch3.addConstraint(Sketcher.Constraint("Parallel", 13, 17))
sketch3.addConstraint(Sketcher.Constraint("Parallel", 15, 19))
sketch3.addConstraint(Sketcher.Constraint("Parallel", 17, 21))
sketch3.addConstraint(Sketcher.Constraint("Parallel", 19, 23))
sketch3.addConstraint(Sketcher.Constraint("Parallel", 21, 25))
sketch3.addConstraint(Sketcher.Constraint("Parallel", 23, 27))
sketch3.addConstraint(Sketcher.Constraint("Parallel", 25, 29))
sketch3.addConstraint(Sketcher.Constraint("Parallel", 27, 31))
sketch3.addConstraint(Sketcher.Constraint("Parallel", 29, 33))
sketch3.addConstraint(Sketcher.Constraint("Parallel", 31, 35))
sketch3.addConstraint(Sketcher.Constraint("Parallel", 33, 37))
sketch3.addConstraint(Sketcher.Constraint("Parallel", 35, 39))
sketch3.addConstraint(Sketcher.Constraint("Parallel", 37, 41))
sketch3.addConstraint(Sketcher.Constraint("Parallel", 39, 43))
sketch3.addConstraint(Sketcher.Constraint("Parallel", 41, 45))
sketch3.addConstraint(Sketcher.Constraint("Parallel", 43, 47))
sketch3.addConstraint(Sketcher.Constraint("Parallel", 45, 49))
sketch3.addConstraint(Sketcher.Constraint("Parallel", 47, 51))
sketch3.addConstraint(Sketcher.Constraint("Parallel", 49, 53))
sketch3.addConstraint(Sketcher.Constraint("Parallel", 51, 55))
sketch3.addConstraint(Sketcher.Constraint("Parallel", 53, 57))
sketch3.addConstraint(Sketcher.Constraint("Parallel", 55, 59))
sketch3.addConstraint(Sketcher.Constraint("Parallel", 57, 61))
sketch3.addConstraint(Sketcher.Constraint("Parallel", 59, 63))
sketch3.addConstraint(Sketcher.Constraint("Parallel", 61, 65))
sketch3.addConstraint(Sketcher.Constraint("Parallel", 63, 67))
sketch3.addConstraint(Sketcher.Constraint("Parallel", 65, 69))
sketch3.addConstraint(Sketcher.Constraint("Parallel", 67, 71))
sketch3.addConstraint(Sketcher.Constraint("Parallel", 69, 73))
sketch3.addConstraint(Sketcher.Constraint("Parallel", 71, 75))
sketch3.addConstraint(Sketcher.Constraint("Parallel", 73, 77))
sketch3.addConstraint(Sketcher.Constraint("Parallel", 75, 79))
sketch3.addConstraint(Sketcher.Constraint("Parallel", 77, 81))
sketch3.addConstraint(Sketcher.Constraint("Vertical", 2, 2, 5, 2))
sketch3.addConstraint(Sketcher.Constraint("Vertical", 1, 2, 7, 2))
sketch3.addConstraint(Sketcher.Constraint("Vertical", 6, 2, 9, 2))
sketch3.addConstraint(Sketcher.Constraint("Vertical", 8, 2, 11, 2))
sketch3.addConstraint(Sketcher.Constraint("Vertical", 10, 2, 13, 2))
sketch3.addConstraint(Sketcher.Constraint("Vertical", 12, 2, 15, 2))
sketch3.addConstraint(Sketcher.Constraint("Vertical", 14, 2, 17, 2))
sketch3.addConstraint(Sketcher.Constraint("Vertical", 16, 2, 19, 2))
sketch3.addConstraint(Sketcher.Constraint("Vertical", 18, 2, 21, 2))
sketch3.addConstraint(Sketcher.Constraint("Vertical", 20, 2, 23, 2))
sketch3.addConstraint(Sketcher.Constraint("Vertical", 22, 2, 25, 2))
sketch3.addConstraint(Sketcher.Constraint("Vertical", 24, 2, 27, 2))
sketch3.addConstraint(Sketcher.Constraint("Vertical", 26, 2, 29, 2))
sketch3.addConstraint(Sketcher.Constraint("Vertical", 28, 2, 31, 2))
sketch3.addConstraint(Sketcher.Constraint("Vertical", 30, 2, 33, 2))
sketch3.addConstraint(Sketcher.Constraint("Vertical", 32, 2, 35, 2))
sketch3.addConstraint(Sketcher.Constraint("Vertical", 34, 2, 37, 2))
sketch3.addConstraint(Sketcher.Constraint("Vertical", 36, 2, 39, 2))
sketch3.addConstraint(Sketcher.Constraint("Vertical", 38, 2, 41, 2))
sketch3.addConstraint(Sketcher.Constraint("Vertical", 40, 2, 43, 2))
sketch3.addConstraint(Sketcher.Constraint("Vertical", 42, 2, 45, 2))
sketch3.addConstraint(Sketcher.Constraint("Vertical", 44, 2, 47, 2))
sketch3.addConstraint(Sketcher.Constraint("Vertical", 46, 2, 49, 2))
sketch3.addConstraint(Sketcher.Constraint("Vertical", 48, 2, 51, 2))
sketch3.addConstraint(Sketcher.Constraint("Vertical", 50, 2, 53, 2))
sketch3.addConstraint(Sketcher.Constraint("Vertical", 52, 2, 55, 2))
sketch3.addConstraint(Sketcher.Constraint("Vertical", 54, 2, 57, 2))
sketch3.addConstraint(Sketcher.Constraint("Vertical", 56, 2, 59, 2))
sketch3.addConstraint(Sketcher.Constraint("Vertical", 58, 2, 61, 2))
sketch3.addConstraint(Sketcher.Constraint("Vertical", 60, 2, 63, 2))
sketch3.addConstraint(Sketcher.Constraint("Vertical", 62, 2, 65, 2))
sketch3.addConstraint(Sketcher.Constraint("Vertical", 64, 2, 67, 2))
sketch3.addConstraint(Sketcher.Constraint("Vertical", 66, 2, 69, 2))
sketch3.addConstraint(Sketcher.Constraint("Vertical", 68, 2, 71, 2))
sketch3.addConstraint(Sketcher.Constraint("Vertical", 70, 2, 73, 2))
sketch3.addConstraint(Sketcher.Constraint("Vertical", 72, 2, 75, 2))
sketch3.addConstraint(Sketcher.Constraint("Vertical", 74, 2, 77, 2))
sketch3.addConstraint(Sketcher.Constraint("Vertical", 76, 2, 79, 2))
sketch3.addConstraint(Sketcher.Constraint("Vertical", 78, 2, 81, 2))
sketch3.addConstraint(Sketcher.Constraint("Equal", 1, 8))
sketch3.addConstraint(Sketcher.Constraint("Equal", 6, 10))
sketch3.addConstraint(Sketcher.Constraint("Equal", 8, 12))
sketch3.addConstraint(Sketcher.Constraint("Equal", 10, 14))
sketch3.addConstraint(Sketcher.Constraint("Equal", 12, 16))
sketch3.addConstraint(Sketcher.Constraint("Equal", 14, 18))
sketch3.addConstraint(Sketcher.Constraint("Equal", 16, 20))
sketch3.addConstraint(Sketcher.Constraint("Equal", 18, 22))
sketch3.addConstraint(Sketcher.Constraint("Equal", 20, 24))
sketch3.addConstraint(Sketcher.Constraint("Equal", 22, 26))
sketch3.addConstraint(Sketcher.Constraint("Equal", 24, 28))
sketch3.addConstraint(Sketcher.Constraint("Equal", 26, 30))
sketch3.addConstraint(Sketcher.Constraint("Equal", 28, 32))
sketch3.addConstraint(Sketcher.Constraint("Equal", 30, 34))
sketch3.addConstraint(Sketcher.Constraint("Equal", 32, 36))
sketch3.addConstraint(Sketcher.Constraint("Equal", 34, 38))
sketch3.addConstraint(Sketcher.Constraint("Equal", 36, 40))
sketch3.addConstraint(Sketcher.Constraint("Equal", 38, 42))
sketch3.addConstraint(Sketcher.Constraint("Equal", 40, 44))
sketch3.addConstraint(Sketcher.Constraint("Equal", 42, 46))
sketch3.addConstraint(Sketcher.Constraint("Equal", 44, 48))
sketch3.addConstraint(Sketcher.Constraint("Equal", 46, 50))
sketch3.addConstraint(Sketcher.Constraint("Equal", 48, 52))
sketch3.addConstraint(Sketcher.Constraint("Equal", 50, 54))
sketch3.addConstraint(Sketcher.Constraint("Equal", 52, 56))
sketch3.addConstraint(Sketcher.Constraint("Equal", 54, 58))
sketch3.addConstraint(Sketcher.Constraint("Equal", 56, 60))
sketch3.addConstraint(Sketcher.Constraint("Equal", 58, 62))
sketch3.addConstraint(Sketcher.Constraint("Equal", 60, 64))
sketch3.addConstraint(Sketcher.Constraint("Equal", 62, 66))
sketch3.addConstraint(Sketcher.Constraint("Equal", 64, 68))
sketch3.addConstraint(Sketcher.Constraint("Equal", 66, 70))
sketch3.addConstraint(Sketcher.Constraint("Equal", 68, 72))
sketch3.addConstraint(Sketcher.Constraint("Equal", 70, 74))
sketch3.addConstraint(Sketcher.Constraint("Equal", 72, 76))
sketch3.addConstraint(Sketcher.Constraint("Equal", 74, 78))
sketch3.addConstraint(Sketcher.Constraint("Equal", 76, 80))
sketch3.addConstraint(Sketcher.Constraint("Equal", 78, 82))
sketch3.addConstraint(Sketcher.Constraint("Equal", 0, 2))
sketch3.addConstraint(Sketcher.Constraint("DistanceX", 3, 2, 3, 1, 10.0))
sketch3.addConstraint(Sketcher.Constraint("Angle", 0, Q("-20 deg")))
sketch3.addConstraint(Sketcher.Constraint("DistanceY", 4, 1, 4, 2, 125.66))
sketch3.addConstraint(Sketcher.Constraint("DistanceX", -1, 1, 0, 2, 14.25))
sketch3.addConstraint(Sketcher.Constraint("DistanceY", 1, 2, 1, 1, 1.66216))
pad3 = body.newObject("PartDesign::Pad", "Pad002")
pad3.Profile = sketch3
pad3.Length = 10

doc.recompute()
